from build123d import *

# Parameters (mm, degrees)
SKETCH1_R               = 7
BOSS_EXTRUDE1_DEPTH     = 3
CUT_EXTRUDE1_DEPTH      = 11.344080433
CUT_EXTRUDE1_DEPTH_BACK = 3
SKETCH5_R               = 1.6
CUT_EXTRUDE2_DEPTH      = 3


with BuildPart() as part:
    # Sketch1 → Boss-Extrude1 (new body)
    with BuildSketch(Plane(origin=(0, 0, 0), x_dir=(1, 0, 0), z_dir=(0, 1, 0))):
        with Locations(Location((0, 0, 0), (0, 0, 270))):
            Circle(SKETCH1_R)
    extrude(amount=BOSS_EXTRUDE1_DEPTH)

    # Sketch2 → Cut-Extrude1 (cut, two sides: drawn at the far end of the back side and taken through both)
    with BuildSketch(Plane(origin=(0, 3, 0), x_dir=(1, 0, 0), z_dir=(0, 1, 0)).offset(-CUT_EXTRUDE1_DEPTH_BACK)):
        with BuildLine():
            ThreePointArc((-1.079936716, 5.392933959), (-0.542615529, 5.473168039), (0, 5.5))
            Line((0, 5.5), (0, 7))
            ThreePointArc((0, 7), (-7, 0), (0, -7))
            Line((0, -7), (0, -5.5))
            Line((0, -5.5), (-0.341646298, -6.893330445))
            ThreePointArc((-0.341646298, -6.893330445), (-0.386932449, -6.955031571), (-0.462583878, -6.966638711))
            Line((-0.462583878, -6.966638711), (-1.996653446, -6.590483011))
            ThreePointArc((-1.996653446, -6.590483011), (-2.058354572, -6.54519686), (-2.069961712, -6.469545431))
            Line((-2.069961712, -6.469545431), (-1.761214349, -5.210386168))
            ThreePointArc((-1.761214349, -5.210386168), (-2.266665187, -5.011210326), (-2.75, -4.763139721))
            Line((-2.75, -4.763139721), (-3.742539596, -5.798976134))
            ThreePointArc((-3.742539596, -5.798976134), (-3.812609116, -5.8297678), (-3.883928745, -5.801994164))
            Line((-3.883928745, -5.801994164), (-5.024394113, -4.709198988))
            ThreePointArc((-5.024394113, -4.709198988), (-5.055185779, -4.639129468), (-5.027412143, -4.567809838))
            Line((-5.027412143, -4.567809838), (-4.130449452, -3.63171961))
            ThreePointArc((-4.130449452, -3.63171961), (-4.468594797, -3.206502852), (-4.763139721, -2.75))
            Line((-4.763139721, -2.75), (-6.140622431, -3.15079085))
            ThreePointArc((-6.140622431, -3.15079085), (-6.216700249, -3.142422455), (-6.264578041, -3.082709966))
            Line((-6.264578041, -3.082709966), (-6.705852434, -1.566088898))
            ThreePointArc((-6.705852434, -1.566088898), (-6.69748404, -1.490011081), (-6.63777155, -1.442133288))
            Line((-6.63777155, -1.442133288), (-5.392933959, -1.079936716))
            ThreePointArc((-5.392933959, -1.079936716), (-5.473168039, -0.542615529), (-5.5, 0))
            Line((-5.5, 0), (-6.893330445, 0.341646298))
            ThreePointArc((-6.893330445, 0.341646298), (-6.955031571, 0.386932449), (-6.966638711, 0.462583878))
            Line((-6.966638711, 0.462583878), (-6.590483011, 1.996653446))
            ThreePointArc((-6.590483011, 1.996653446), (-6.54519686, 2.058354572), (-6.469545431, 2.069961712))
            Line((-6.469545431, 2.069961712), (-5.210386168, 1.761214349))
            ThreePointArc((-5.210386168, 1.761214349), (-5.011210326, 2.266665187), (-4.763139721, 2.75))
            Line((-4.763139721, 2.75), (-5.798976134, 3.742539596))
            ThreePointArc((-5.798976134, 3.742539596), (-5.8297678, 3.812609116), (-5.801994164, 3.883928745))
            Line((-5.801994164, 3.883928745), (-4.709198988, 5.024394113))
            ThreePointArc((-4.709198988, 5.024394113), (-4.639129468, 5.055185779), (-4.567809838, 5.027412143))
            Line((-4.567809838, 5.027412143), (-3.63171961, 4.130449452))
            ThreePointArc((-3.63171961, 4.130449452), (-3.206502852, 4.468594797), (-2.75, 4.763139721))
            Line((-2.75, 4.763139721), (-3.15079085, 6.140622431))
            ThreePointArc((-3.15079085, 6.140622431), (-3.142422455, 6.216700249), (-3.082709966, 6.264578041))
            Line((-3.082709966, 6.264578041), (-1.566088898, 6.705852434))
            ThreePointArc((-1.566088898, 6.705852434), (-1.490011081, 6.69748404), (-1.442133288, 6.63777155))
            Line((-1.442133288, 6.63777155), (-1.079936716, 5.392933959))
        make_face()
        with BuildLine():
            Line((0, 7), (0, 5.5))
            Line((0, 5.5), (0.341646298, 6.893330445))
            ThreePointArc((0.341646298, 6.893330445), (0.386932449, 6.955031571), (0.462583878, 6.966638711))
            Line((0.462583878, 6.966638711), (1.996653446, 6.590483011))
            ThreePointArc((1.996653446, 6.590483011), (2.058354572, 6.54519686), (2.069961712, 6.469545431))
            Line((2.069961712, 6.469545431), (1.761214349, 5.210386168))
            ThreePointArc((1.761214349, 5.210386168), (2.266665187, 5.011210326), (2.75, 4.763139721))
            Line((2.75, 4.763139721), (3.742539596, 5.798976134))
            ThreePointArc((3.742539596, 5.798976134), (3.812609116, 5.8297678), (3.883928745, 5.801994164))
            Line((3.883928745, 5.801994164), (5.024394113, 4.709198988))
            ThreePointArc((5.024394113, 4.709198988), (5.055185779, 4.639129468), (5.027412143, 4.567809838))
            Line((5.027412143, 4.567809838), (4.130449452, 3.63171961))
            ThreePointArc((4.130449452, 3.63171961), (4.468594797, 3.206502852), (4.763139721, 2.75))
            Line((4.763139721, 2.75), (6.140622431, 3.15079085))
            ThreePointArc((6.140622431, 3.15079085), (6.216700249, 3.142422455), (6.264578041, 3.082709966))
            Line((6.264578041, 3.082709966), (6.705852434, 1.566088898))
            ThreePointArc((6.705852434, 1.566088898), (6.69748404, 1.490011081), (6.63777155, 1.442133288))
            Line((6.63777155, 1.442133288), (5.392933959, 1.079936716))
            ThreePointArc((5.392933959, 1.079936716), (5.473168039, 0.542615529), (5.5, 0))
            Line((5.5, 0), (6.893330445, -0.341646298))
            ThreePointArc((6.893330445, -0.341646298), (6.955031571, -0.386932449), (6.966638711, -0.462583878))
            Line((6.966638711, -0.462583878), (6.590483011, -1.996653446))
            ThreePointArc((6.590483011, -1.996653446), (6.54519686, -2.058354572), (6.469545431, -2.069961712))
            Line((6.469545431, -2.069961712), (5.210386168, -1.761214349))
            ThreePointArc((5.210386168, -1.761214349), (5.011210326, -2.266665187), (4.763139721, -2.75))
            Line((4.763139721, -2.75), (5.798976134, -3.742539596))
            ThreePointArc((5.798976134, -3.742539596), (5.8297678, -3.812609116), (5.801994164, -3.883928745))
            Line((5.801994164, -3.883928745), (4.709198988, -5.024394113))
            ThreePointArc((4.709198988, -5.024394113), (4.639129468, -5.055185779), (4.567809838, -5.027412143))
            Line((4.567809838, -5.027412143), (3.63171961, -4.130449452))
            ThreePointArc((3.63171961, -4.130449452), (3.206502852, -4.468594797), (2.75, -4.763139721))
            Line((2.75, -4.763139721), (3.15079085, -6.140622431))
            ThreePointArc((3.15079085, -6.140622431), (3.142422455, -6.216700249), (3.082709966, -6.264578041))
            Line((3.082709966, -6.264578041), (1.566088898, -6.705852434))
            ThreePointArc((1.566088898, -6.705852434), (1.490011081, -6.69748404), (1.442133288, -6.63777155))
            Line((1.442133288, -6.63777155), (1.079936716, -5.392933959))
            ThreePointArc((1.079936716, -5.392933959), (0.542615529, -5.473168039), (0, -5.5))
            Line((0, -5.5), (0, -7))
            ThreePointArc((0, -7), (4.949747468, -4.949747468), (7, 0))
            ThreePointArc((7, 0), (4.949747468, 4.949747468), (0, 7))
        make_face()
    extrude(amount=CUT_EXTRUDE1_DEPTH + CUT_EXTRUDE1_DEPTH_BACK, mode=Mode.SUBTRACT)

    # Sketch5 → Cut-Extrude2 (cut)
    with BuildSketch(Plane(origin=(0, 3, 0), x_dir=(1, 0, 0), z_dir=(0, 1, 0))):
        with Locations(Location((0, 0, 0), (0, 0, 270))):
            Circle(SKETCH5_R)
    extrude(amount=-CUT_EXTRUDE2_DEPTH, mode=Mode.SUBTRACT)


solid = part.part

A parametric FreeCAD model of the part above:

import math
import FreeCAD as App
import Part
import Sketcher

V = App.Vector

doc = App.newDocument("Part")
params = doc.addObject("Spreadsheet::Sheet", "Params")
for row, (alias, value) in enumerate([
    ("sketch1_diameter", "14 mm"),
    ("pad1_length", "3 mm"),
    ("sketch2_radius", "7 mm"),
    ("sketch2_radius2", "5.5 mm"),
    ("sketch2_radius3", "0.1 mm"),
    ("sketch3_diameter", "3.2 mm"),
    ("pocket2_length", "3 mm"),
], start=1):
    params.set(f"A{row}", alias)
    params.set(f"B{row}", "=" + value)
    params.setAlias(f"B{row}", alias)

body = doc.addObject("PartDesign::Body", "Body")

# Sketch on XZ plane
sketch1 = body.newObject("Sketcher::SketchObject", "Sketch")
sketch1.AttachmentSupport = (doc.getObject("XZ_Plane"), [""])
sketch1.MapMode = "FlatFace"
sketch1.addGeometry(Part.Circle(V(0, 0, 0), V(0, 0, 1), 7), False)
sketch1.addConstraint([
    Sketcher.Constraint("Coincident", 0, 3, -1, 1),
    Sketcher.Constraint("Diameter", 0, 14.0),
])
sketch1.setExpression("Constraints[1]", "Params.sketch1_diameter")
pad1 = body.newObject("PartDesign::Pad", "Pad")
pad1.Profile = sketch1
pad1.setExpression("Length", "Params.pad1_length")
pad1.Reversed = True

# Sketch on XZ plane
sketch2 = body.newObject("Sketcher::SketchObject", "Sketch001")
sketch2.AttachmentSupport = (doc.getObject("XZ_Plane"), [""])
sketch2.MapMode = "FlatFace"
sketch2.AttachmentOffset = App.Placement(V(0, 0, -3), App.Rotation())
sketch2.addGeometry([
    Part.ArcOfCircle(Part.Circle(V(0, 0, 0), V(0, 0, 1), 7), math.radians(90), math.radians(270)),  # 0
    Part.ArcOfCircle(Part.Circle(V(0, 0, 0), V(0, 0, 1), 7), math.radians(0), math.radians(90)),  # 1
    Part.ArcOfCircle(Part.Circle(V(0, 0, 0), V(0, 0, 1), 7), math.radians(-90), math.radians(0)),  # 2
    Part.ArcOfCircle(Part.Circle(V(0, 0, 0), V(0, 0, 1), 5.5), math.radians(-101.323722), math.radians(-90)),  # 3
    Part.LineSegment(V(0, -5.5, 0), V(0.341646, -6.89333, 0)),  # 4
    Part.ArcOfCircle(Part.Circle(V(0.438769, -6.869516, 0), V(0, 0, 1), 0.1), math.radians(-166.222825), math.radians(-76.222825)),  # 5
    Part.LineSegment(V(0.462584, -6.966639, 0), V(1.996653, -6.590483, 0)),  # 6
    Part.ArcOfCircle(Part.Circle(V(1.972839, -6.49336, 0), V(0, 0, 1), 0.1), math.radians(-76.222825), math.radians(13.777175)),  # 7
    Part.LineSegment(V(2.069962, -6.469545, 0), V(1.761214, -5.210386, 0)),  # 8
    Part.ArcOfCircle(Part.Circle(V(0, 0, 0), V(0, 0, 1), 5.5), math.radians(-71.323722), math.radians(-60)),  # 9
    Part.LineSegment(V(2.75, -4.76314, 0), V(3.74254, -5.798976, 0)),  # 10
    Part.ArcOfCircle(Part.Circle(V(3.814743, -5.729791, 0), V(0, 0, 1), 0.1), math.radians(-136.222824), math.radians(-46.222825)),  # 11
    Part.LineSegment(V(3.883929, -5.801994, 0), V(5.024394, -4.709199, 0)),  # 12
    Part.ArcOfCircle(Part.Circle(V(4.955209, -4.636995, 0), V(0, 0, 1), 0.1), math.radians(-46.222823), math.radians(43.777174)),  # 13
    Part.LineSegment(V(5.027412, -4.56781, 0), V(4.130449, -3.63172, 0)),  # 14
    Part.ArcOfCircle(Part.Circle(V(0, 0, 0), V(0, 0, 1), 5.5), math.radians(-41.323722), math.radians(-30)),  # 15
    Part.LineSegment(V(4.76314, -2.75, 0), V(6.140622, -3.150791, 0)),  # 16
    Part.ArcOfCircle(Part.Circle(V(6.16856, -3.054773, 0), V(0, 0, 1), 0.1), math.radians(-106.222824), math.radians(-16.222825)),  # 17
    Part.LineSegment(V(6.264578, -3.08271, 0), V(6.705852, -1.566089, 0)),  # 18
    Part.ArcOfCircle(Part.Circle(V(6.609834, -1.538152, 0), V(0, 0, 1), 0.1), math.radians(-16.222825), math.radians(73.777176)),  # 19
    Part.LineSegment(V(6.637772, -1.442133, 0), V(5.392934, -1.079937, 0)),  # 20
    Part.ArcOfCircle(Part.Circle(V(0, 0, 0), V(0, 0, 1), 5.5), math.radians(-11.323722), math.radians(0)),  # 21
    Part.LineSegment(V(5.5, 0, 0), V(6.89333, 0.341646, 0)),  # 22
    Part.ArcOfCircle(Part.Circle(V(6.869516, 0.438769, 0), V(0, 0, 1), 0.1), math.radians(-76.222825), math.radians(13.777175)),  # 23
    Part.LineSegment(V(6.966639, 0.462584, 0), V(6.590483, 1.996653, 0)),  # 24
    Part.ArcOfCircle(Part.Circle(V(6.49336, 1.972839, 0), V(0, 0, 1), 0.1), math.radians(13.777175), math.radians(103.777175)),  # 25
    Part.LineSegment(V(6.469545, 2.069962, 0), V(5.210386, 1.761214, 0)),  # 26
    Part.ArcOfCircle(Part.Circle(V(0, 0, 0), V(0, 0, 1), 5.5), math.radians(18.676278), math.radians(30)),  # 27
    Part.LineSegment(V(4.76314, 2.75, 0), V(5.798976, 3.74254, 0)),  # 28
    Part.ArcOfCircle(Part.Circle(V(5.729791, 3.814743, 0), V(0, 0, 1), 0.1), math.radians(-46.222824), math.radians(43.777175)),  # 29
    Part.LineSegment(V(5.801994, 3.883929, 0), V(4.709199, 5.024394, 0)),  # 30
    Part.ArcOfCircle(Part.Circle(V(4.636995, 4.955209, 0), V(0, 0, 1), 0.1), math.radians(43.777177), math.radians(133.777174)),  # 31
    Part.LineSegment(V(4.56781, 5.027412, 0), V(3.63172, 4.130449, 0)),  # 32
    Part.ArcOfCircle(Part.Circle(V(0, 0, 0), V(0, 0, 1), 5.5), math.radians(48.676278), math.radians(60)),  # 33
    Part.LineSegment(V(2.75, 4.76314, 0), V(3.150791, 6.140622, 0)),  # 34
    Part.ArcOfCircle(Part.Circle(V(3.054773, 6.16856, 0), V(0, 0, 1), 0.1), math.radians(-16.222824), math.radians(73.777175)),  # 35
    Part.LineSegment(V(3.08271, 6.264578, 0), V(1.566089, 6.705852, 0)),  # 36
    Part.ArcOfCircle(Part.Circle(V(1.538152, 6.609834, 0), V(0, 0, 1), 0.1), math.radians(73.777175), math.radians(163.777176)),  # 37
    Part.LineSegment(V(1.442133, 6.637772, 0), V(1.079937, 5.392934, 0)),  # 38
    Part.ArcOfCircle(Part.Circle(V(0, 0, 0), V(0, 0, 1), 5.5), math.radians(78.676278), math.radians(90)),  # 39
    Part.LineSegment(V(0, 5.5, 0), V(-0.341646, 6.89333, 0)),  # 40
    Part.ArcOfCircle(Part.Circle(V(-0.438769, 6.869516, 0), V(0, 0, 1), 0.1), math.radians(13.777175), math.radians(103.777175)),  # 41
    Part.LineSegment(V(-0.462584, 6.966639, 0), V(-1.996653, 6.590483, 0)),  # 42
    Part.ArcOfCircle(Part.Circle(V(-1.972839, 6.49336, 0), V(0, 0, 1), 0.1), math.radians(103.777175), math.radians(193.777175)),  # 43
    Part.LineSegment(V(-2.069962, 6.469545, 0), V(-1.761214, 5.210386, 0)),  # 44
    Part.ArcOfCircle(Part.Circle(V(0, 0, 0), V(0, 0, 1), 5.5), math.radians(108.676278), math.radians(120)),  # 45
    Part.LineSegment(V(-2.75, 4.76314, 0), V(-3.74254, 5.798976, 0)),  # 46
    Part.ArcOfCircle(Part.Circle(V(-3.814743, 5.729791, 0), V(0, 0, 1), 0.1), math.radians(43.777176), math.radians(133.777175)),  # 47
    Part.LineSegment(V(-3.883929, 5.801994, 0), V(-5.024394, 4.709199, 0)),  # 48
    Part.ArcOfCircle(Part.Circle(V(-4.955209, 4.636995, 0), V(0, 0, 1), 0.1), math.radians(133.777177), math.radians(223.777174)),  # 49
    Part.LineSegment(V(-5.027412, 4.56781, 0), V(-4.130449, 3.63172, 0)),  # 50
    Part.ArcOfCircle(Part.Circle(V(0, 0, 0), V(0, 0, 1), 5.5), math.radians(138.676278), math.radians(150)),  # 51
    Part.LineSegment(V(-4.76314, 2.75, 0), V(-6.140622, 3.150791, 0)),  # 52
    Part.ArcOfCircle(Part.Circle(V(-6.16856, 3.054773, 0), V(0, 0, 1), 0.1), math.radians(73.777176), math.radians(163.777175)),  # 53
    Part.LineSegment(V(-6.264578, 3.08271, 0), V(-6.705852, 1.566089, 0)),  # 54
    Part.ArcOfCircle(Part.Circle(V(-6.609834, 1.538152, 0), V(0, 0, 1), 0.1), math.radians(163.777175), math.radians(253.777176)),  # 55
    Part.LineSegment(V(-6.637772, 1.442133, 0), V(-5.392934, 1.079937, 0)),  # 56
    Part.ArcOfCircle(Part.Circle(V(0, 0, 0), V(0, 0, 1), 5.5), math.radians(168.676278), math.radians(180)),  # 57
    Part.LineSegment(V(-5.5, 0, 0), V(-6.89333, -0.341646, 0)),  # 58
    Part.ArcOfCircle(Part.Circle(V(-6.869516, -0.438769, 0), V(0, 0, 1), 0.1), math.radians(103.777175), math.radians(193.777175)),  # 59
    Part.LineSegment(V(-6.966639, -0.462584, 0), V(-6.590483, -1.996653, 0)),  # 60
    Part.ArcOfCircle(Part.Circle(V(-6.49336, -1.972839, 0), V(0, 0, 1), 0.1), math.radians(-166.222825), math.radians(-76.222825)),  # 61
    Part.LineSegment(V(-6.469545, -2.069962, 0), V(-5.210386, -1.761214, 0)),  # 62
    Part.ArcOfCircle(Part.Circle(V(0, 0, 0), V(0, 0, 1), 5.5), math.radians(-161.323722), math.radians(-150)),  # 63
    Part.LineSegment(V(-4.76314, -2.75, 0), V(-5.798976, -3.74254, 0)),  # 64
    Part.ArcOfCircle(Part.Circle(V(-5.729791, -3.814743, 0), V(0, 0, 1), 0.1), math.radians(133.777176), math.radians(223.777175)),  # 65
    Part.LineSegment(V(-5.801994, -3.883929, 0), V(-4.709199, -5.024394, 0)),  # 66
    Part.ArcOfCircle(Part.Circle(V(-4.636995, -4.955209, 0), V(0, 0, 1), 0.1), math.radians(-136.222823), math.radians(-46.222826)),  # 67
    Part.LineSegment(V(-4.56781, -5.027412, 0), V(-3.63172, -4.130449, 0)),  # 68
    Part.ArcOfCircle(Part.Circle(V(0, 0, 0), V(0, 0, 1), 5.5), math.radians(-131.323722), math.radians(-120)),  # 69
    Part.LineSegment(V(-2.75, -4.76314, 0), V(-3.150791, -6.140622, 0)),  # 70
    Part.ArcOfCircle(Part.Circle(V(-3.054773, -6.16856, 0), V(0, 0, 1), 0.1), math.radians(163.777176), math.radians(253.777175)),  # 71
    Part.LineSegment(V(-3.08271, -6.264578, 0), V(-1.566089, -6.705852, 0)),  # 72
    Part.ArcOfCircle(Part.Circle(V(-1.538152, -6.609834, 0), V(0, 0, 1), 0.1), math.radians(-106.222825), math.radians(-16.222824)),  # 73
    Part.LineSegment(V(-1.442133, -6.637772, 0), V(-1.079937, -5.392934, 0)),  # 74
], False)
sketch2.addConstraint([
    Sketcher.Constraint("Tangent", 0, 1, 1, 2),
    Sketcher.Constraint("Tangent", 1, 1, 2, 2),
    Sketcher.Constraint("Tangent", 2, 1, 0, 2),
    Sketcher.Constraint("Coincident", 3, 2, 4, 1),
    Sketcher.Constraint("Tangent", 4, 2, 5, 1),
    Sketcher.Constraint("Tangent", 5, 2, 6, 1),
    Sketcher.Constraint("Tangent", 6, 2, 7, 1),
    Sketcher.Constraint("Tangent", 7, 2, 8, 1),
    Sketcher.Constraint("Coincident", 8, 2, 9, 1),
    Sketcher.Constraint("Coincident", 9, 2, 10, 1),
    Sketcher.Constraint("Tangent", 10, 2, 11, 1),
    Sketcher.Constraint("Tangent", 11, 2, 12, 1),
    Sketcher.Constraint("Tangent", 12, 2, 13, 1),
    Sketcher.Constraint("Tangent", 13, 2, 14, 1),
    Sketcher.Constraint("Coincident", 14, 2, 15, 1),
    Sketcher.Constraint("Coincident", 15, 2, 16, 1),
    Sketcher.Constraint("Tangent", 16, 2, 17, 1),
    Sketcher.Constraint("Tangent", 17, 2, 18, 1),
    Sketcher.Constraint("Tangent", 18, 2, 19, 1),
    Sketcher.Constraint("Tangent", 19, 2, 20, 1),
    Sketcher.Constraint("Coincident", 20, 2, 21, 1),
    Sketcher.Constraint("Coincident", 21, 2, 22, 1),
    Sketcher.Constraint("Tangent", 22, 2, 23, 1),
    Sketcher.Constraint("Tangent", 23, 2, 24, 1),
    Sketcher.Constraint("Tangent", 24, 2, 25, 1),
    Sketcher.Constraint("Tangent", 25, 2, 26, 1),
    Sketcher.Constraint("Coincident", 26, 2, 27, 1),
    Sketcher.Constraint("Coincident", 27, 2, 28, 1),
    Sketcher.Constraint("Tangent", 28, 2, 29, 1),
    Sketcher.Constraint("Tangent", 29, 2, 30, 1),
    Sketcher.Constraint("Tangent", 30, 2, 31, 1),
    Sketcher.Constraint("Tangent", 31, 2, 32, 1),
    Sketcher.Constraint("Coincident", 32, 2, 33, 1),
    Sketcher.Constraint("Coincident", 33, 2, 34, 1),
    Sketcher.Constraint("Tangent", 34, 2, 35, 1),
    Sketcher.Constraint("Tangent", 35, 2, 36, 1),
    Sketcher.Constraint("Tangent", 36, 2, 37, 1),
    Sketcher.Constraint("Tangent", 37, 2, 38, 1),
    Sketcher.Constraint("Coincident", 38, 2, 39, 1),
    Sketcher.Constraint("Coincident", 39, 2, 40, 1),
    Sketcher.Constraint("Tangent", 40, 2, 41, 1),
    Sketcher.Constraint("Tangent", 41, 2, 42, 1),
    Sketcher.Constraint("Tangent", 42, 2, 43, 1),
    Sketcher.Constraint("Tangent", 43, 2, 44, 1),
    Sketcher.Constraint("Coincident", 44, 2, 45, 1),
    Sketcher.Constraint("Coincident", 45, 2, 46, 1),
    Sketcher.Constraint("Tangent", 46, 2, 47, 1),
    Sketcher.Constraint("Tangent", 47, 2, 48, 1),
    Sketcher.Constraint("Tangent", 48, 2, 49, 1),
    Sketcher.Constraint("Tangent", 49, 2, 50, 1),
    Sketcher.Constraint("Coincident", 50, 2, 51, 1),
    Sketcher.Constraint("Coincident", 51, 2, 52, 1),
    Sketcher.Constraint("Tangent", 52, 2, 53, 1),
    Sketcher.Constraint("Tangent", 53, 2, 54, 1),
    Sketcher.Constraint("Tangent", 54, 2, 55, 1),
    Sketcher.Constraint("Tangent", 55, 2, 56, 1),
    Sketcher.Constraint("Coincident", 56, 2, 57, 1),
    Sketcher.Constraint("Coincident", 57, 2, 58, 1),
    Sketcher.Constraint("Tangent", 58, 2, 59, 1),
    Sketcher.Constraint("Tangent", 59, 2, 60, 1),
    Sketcher.Constraint("Tangent", 60, 2, 61, 1),
    Sketcher.Constraint("Tangent", 61, 2, 62, 1),
    Sketcher.Constraint("Coincident", 62, 2, 63, 1),
    Sketcher.Constraint("Coincident", 63, 2, 64, 1),
    Sketcher.Constraint("Tangent", 64, 2, 65, 1),
    Sketcher.Constraint("Tangent", 65, 2, 66, 1),
    Sketcher.Constraint("Tangent", 66, 2, 67, 1),
    Sketcher.Constraint("Tangent", 67, 2, 68, 1),
    Sketcher.Constraint("Coincident", 68, 2, 69, 1),
    Sketcher.Constraint("Coincident", 69, 2, 70, 1),
    Sketcher.Constraint("Tangent", 70, 2, 71, 1),
    Sketcher.Constraint("Tangent", 71, 2, 72, 1),
    Sketcher.Constraint("Tangent", 72, 2, 73, 1),
    Sketcher.Constraint("Tangent", 73, 2, 74, 1),
    Sketcher.Constraint("Coincident", 74, 2, 3, 1),
    Sketcher.Constraint("Coincident", 0, 3, -1, 1),
    Sketcher.Constraint("Coincident", 3, 3, -1, 1),
    Sketcher.Constraint("Coincident", 9, 3, -1, 1),
    Sketcher.Constraint("Coincident", 15, 3, -1, 1),
    Sketcher.Constraint("Coincident", 21, 3, -1, 1),
    Sketcher.Constraint("Coincident", 27, 3, -1, 1),
    Sketcher.Constraint("Coincident", 33, 3, -1, 1),
    Sketcher.Constraint("Coincident", 39, 3, -1, 1),
    Sketcher.Constraint("Coincident", 45, 3, -1, 1),
    Sketcher.Constraint("Coincident", 51, 3, -1, 1),
    Sketcher.Constraint("Coincident", 57, 3, -1, 1),
    Sketcher.Constraint("Coincident", 63, 3, -1, 1),
    Sketcher.Constraint("Coincident", 69, 3, -1, 1),
    Sketcher.Constraint("Equal", 5, 7),
    Sketcher.Constraint("Equal", 3, 9),
    Sketcher.Constraint("Equal", 7, 11),
    Sketcher.Constraint("Equal", 11, 13),
    Sketcher.Constraint("Equal", 9, 15),
    Sketcher.Constraint("Equal", 13, 17),
    Sketcher.Constraint("Equal", 17, 19),
    Sketcher.Constraint("Equal", 15, 21),
    Sketcher.Constraint("Equal", 19, 23),
    Sketcher.Constraint("Equal", 23, 25),
    Sketcher.Constraint("Equal", 21, 27),
    Sketcher.Constraint("Equal", 25, 29),
    Sketcher.Constraint("Equal", 29, 31),
    Sketcher.Constraint("Equal", 27, 33),
    Sketcher.Constraint("Equal", 31, 35),
    Sketcher.Constraint("Equal", 35, 37),
    Sketcher.Constraint("Equal", 33, 39),
    Sketcher.Constraint("Equal", 37, 41),
    Sketcher.Constraint("Equal", 41, 43),
    Sketcher.Constraint("Equal", 39, 45),
    Sketcher.Constraint("Equal", 43, 47),
    Sketcher.Constraint("Equal", 47, 49),
    Sketcher.Constraint("Equal", 45, 51),
    Sketcher.Constraint("Equal", 49, 53),
    Sketcher.Constraint("Equal", 53, 55),
    Sketcher.Constraint("Equal", 51, 57),
    Sketcher.Constraint("Equal", 55, 59),
    Sketcher.Constraint("Equal", 59, 61),
    Sketcher.Constraint("Equal", 57, 63),
    Sketcher.Constraint("Equal", 61, 65),
    Sketcher.Constraint("Equal", 65, 67),
    Sketcher.Constraint("Equal", 63, 69),
    Sketcher.Constraint("Equal", 67, 71),
    Sketcher.Constraint("Equal", 71, 73),
    Sketcher.Constraint("Symmetric", 5, 3, 41, 3, -1, 1),
    Sketcher.Constraint("Symmetric", 7, 3, 43, 3, -1, 1),
    Sketcher.Constraint("Symmetric", 11, 3, 47, 3, -1, 1),
    Sketcher.Constraint("Symmetric", 13, 3, 49, 3, -1, 1),
    Sketcher.Constraint("Symmetric", 17, 3, 53, 3, -1, 1),
    Sketcher.Constraint("Symmetric", 19, 3, 55, 3, -1, 1),
    Sketcher.Constraint("Symmetric", 23, 3, 59, 3, -1, 1),
    Sketcher.Constraint("Symmetric", 25, 3, 61, 3, -1, 1),
    Sketcher.Constraint("Symmetric", 29, 3, 65, 3, -1, 1),
    Sketcher.Constraint("Symmetric", 31, 3, 67, 3, -1, 1),
    Sketcher.Constraint("Symmetric", 35, 3, 71, 3, -1, 1),
    Sketcher.Constraint("Symmetric", 37, 3, 73, 3, -1, 1),
    Sketcher.Constraint("PointOnObject", 0, 1, -2),
    Sketcher.Constraint("PointOnObject", 1, 1, -1),
    Sketcher.Constraint("PointOnObject", 2, 1, -2),
    Sketcher.Constraint("PointOnObject", 3, 2, -2),
    Sketcher.Constraint("PointOnObject", 21, 2, -1),
    Sketcher.Constraint("PointOnObject", 39, 2, -2),
    Sketcher.Constraint("PointOnObject", 57, 2, -1),
    Sketcher.Constraint("Perpendicular", 4, 6),
    Sketcher.Constraint("Perpendicular", 6, 8),
    Sketcher.Constraint("Perpendicular", 10, 12),
    Sketcher.Constraint("Perpendicular", 12, 14),
    Sketcher.Constraint("Perpendicular", 16, 18),
    Sketcher.Constraint("Perpendicular", 18, 20),
    Sketcher.Constraint("Perpendicular", 8, 22),
    Sketcher.Constraint("Perpendicular", 22, 24),
    Sketcher.Constraint("Perpendicular", 24, 26),
    Sketcher.Constraint("Perpendicular", 14, 28),
    Sketcher.Constraint("Perpendicular", 28, 30),
    Sketcher.Constraint("Perpendicular", 30, 32),
    Sketcher.Constraint("Perpendicular", 20, 34),
    Sketcher.Constraint("Perpendicular", 34, 36),
    Sketcher.Constraint("Perpendicular", 36, 38),
    Sketcher.Constraint("Perpendicular", 42, 44),
    Sketcher.Constraint("Perpendicular", 32, 46),
    Sketcher.Constraint("Perpendicular", 48, 50),
    Sketcher.Constraint("Perpendicular", 38, 52),
    Sketcher.Constraint("Perpendicular", 54, 56),
    Sketcher.Constraint("Perpendicular", 60, 62),
    Sketcher.Constraint("Perpendicular", 50, 64),
    Sketcher.Constraint("Perpendicular", 66, 68),
    Sketcher.Constraint("Perpendicular", 56, 70),
    Sketcher.Constraint("Perpendicular", 72, 74),
    Sketcher.Constraint("Horizontal", 33, 2, 45, 2),
    Sketcher.Constraint("Horizontal", 27, 2, 51, 2),
    Sketcher.Constraint("Equal", 4, 10),
    Sketcher.Constraint("Equal", 6, 12),
    Sketcher.Constraint("Equal", 8, 14),
    Sketcher.Constraint("Equal", 10, 16),
    Sketcher.Constraint("Equal", 12, 18),
    Sketcher.Constraint("Equal", 14, 20),
    Sketcher.Constraint("Equal", 16, 22),
    Sketcher.Constraint("Equal", 18, 24),
    Sketcher.Constraint("Equal", 22, 28),
    Sketcher.Constraint("Equal", 24, 30),
    Sketcher.Constraint("Equal", 26, 32),
    Sketcher.Constraint("Equal", 28, 34),
    Sketcher.Constraint("Equal", 30, 36),
    Sketcher.Constraint("Radius", 0, 7.0),
    Sketcher.Constraint("Radius", 3, 5.5),
    Sketcher.Constraint("Radius", 5, 0.1),
    Sketcher.Constraint("DistanceX", -1, 1, 9, 2, 2.75),
    Sketcher.Constraint("DistanceY", 12, 2, -1, 1, 4.709199),
    Sketcher.Constraint("Distance", 8, 1.296459),
    Sketcher.Constraint("DistanceX", -1, 1, 5, 3, 0.438769),
])
sketch2.setExpression("Constraints[181]", "Params.sketch2_radius")
sketch2.setExpression("Constraints[182]", "Params.sketch2_radius2")
sketch2.setExpression("Constraints[183]", "Params.sketch2_radius3")
pocket1 = body.newObject("PartDesign::Pocket", "Pocket")
pocket1.Profile = sketch2
pocket1.Type = "ThroughAll"
pocket1.Midplane = True

# Sketch on XZ plane
sketch3 = body.newObject("Sketcher::SketchObject", "Sketch002")
sketch3.AttachmentSupport = (doc.getObject("XZ_Plane"), [""])
sketch3.MapMode = "FlatFace"
sketch3.AttachmentOffset = App.Placement(V(0, 0, -3), App.Rotation())
sketch3.addGeometry(Part.Circle(V(0, 0, 0), V(0, 0, 1), 1.6), False)
sketch3.addConstraint([
    Sketcher.Constraint("Coincident", 0, 3, -1, 1),
    Sketcher.Constraint("Diameter", 0, 3.2),
])
sketch3.setExpression("Constraints[1]", "Params.sketch3_diameter")
pocket2 = body.newObject("PartDesign::Pocket", "Pocket001")
pocket2.Profile = sketch3
pocket2.setExpression("Length", "Params.pocket2_length")
pocket2.Reversed = True

doc.recompute()
